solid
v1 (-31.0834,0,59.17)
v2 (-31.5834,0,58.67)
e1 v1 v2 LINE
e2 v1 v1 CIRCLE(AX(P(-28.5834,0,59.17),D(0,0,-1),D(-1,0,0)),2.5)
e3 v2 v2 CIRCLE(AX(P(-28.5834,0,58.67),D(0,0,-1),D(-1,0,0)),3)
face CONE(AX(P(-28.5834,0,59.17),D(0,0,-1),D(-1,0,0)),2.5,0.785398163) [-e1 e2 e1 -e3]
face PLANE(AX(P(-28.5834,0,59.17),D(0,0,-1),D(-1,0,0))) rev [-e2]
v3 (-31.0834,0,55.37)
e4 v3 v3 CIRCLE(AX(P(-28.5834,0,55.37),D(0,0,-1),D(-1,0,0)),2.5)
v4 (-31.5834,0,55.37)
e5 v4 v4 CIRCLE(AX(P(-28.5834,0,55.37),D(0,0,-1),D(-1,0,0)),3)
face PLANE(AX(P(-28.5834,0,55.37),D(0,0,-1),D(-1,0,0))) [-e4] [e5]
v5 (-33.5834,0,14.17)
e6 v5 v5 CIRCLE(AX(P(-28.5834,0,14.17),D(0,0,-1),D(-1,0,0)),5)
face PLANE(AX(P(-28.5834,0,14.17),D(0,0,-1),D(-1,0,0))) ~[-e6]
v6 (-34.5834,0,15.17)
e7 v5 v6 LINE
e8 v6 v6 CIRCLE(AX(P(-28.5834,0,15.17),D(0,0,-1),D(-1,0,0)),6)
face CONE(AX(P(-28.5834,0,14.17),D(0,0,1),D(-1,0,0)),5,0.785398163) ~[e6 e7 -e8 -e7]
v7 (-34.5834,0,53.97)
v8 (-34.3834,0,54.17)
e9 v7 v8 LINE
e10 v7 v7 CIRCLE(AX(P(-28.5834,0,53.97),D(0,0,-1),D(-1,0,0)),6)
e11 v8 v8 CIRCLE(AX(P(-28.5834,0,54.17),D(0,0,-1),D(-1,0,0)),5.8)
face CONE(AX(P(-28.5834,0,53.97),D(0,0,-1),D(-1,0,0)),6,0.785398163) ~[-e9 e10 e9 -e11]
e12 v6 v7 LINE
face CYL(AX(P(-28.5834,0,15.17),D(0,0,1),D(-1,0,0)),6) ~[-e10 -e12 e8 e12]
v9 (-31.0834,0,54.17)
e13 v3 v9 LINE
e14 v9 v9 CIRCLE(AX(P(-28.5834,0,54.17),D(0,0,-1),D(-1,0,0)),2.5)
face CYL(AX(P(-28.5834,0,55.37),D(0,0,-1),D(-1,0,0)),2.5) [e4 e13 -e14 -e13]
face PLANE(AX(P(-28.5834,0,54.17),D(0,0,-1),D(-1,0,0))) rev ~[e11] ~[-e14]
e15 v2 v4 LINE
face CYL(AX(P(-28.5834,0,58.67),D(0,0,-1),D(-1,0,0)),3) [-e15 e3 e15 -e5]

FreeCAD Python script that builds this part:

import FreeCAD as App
import Part
import Sketcher
Q = App.Units.Quantity


def add_polygon(sketch, points):
    """Adds a closed chain of lines whose ends are joined by coincident constraints."""
    first, n = sketch.GeometryCount, len(points)
    for a, b in zip(points, points[1:] + points[:1]):
        sketch.addGeometry(Part.LineSegment(App.Vector(*a, 0), App.Vector(*b, 0)), False)
    for i in range(n):
        sketch.addConstraint(Sketcher.Constraint("Coincident", first + i, 2, first + (i + 1) % n, 1))

doc = App.newDocument("Part")
body = doc.addObject("PartDesign::Body", "Body")

# Sketch on XZ plane
sketch1 = body.newObject("Sketcher::SketchObject", "Sketch")
sketch1.AttachmentSupport = (doc.getObject("XZ_Plane"), [""])
sketch1.MapMode = "FlatFace"
add_polygon(sketch1, [(-28.58, 14.17), (-33.58, 14.17), (-34.58, 15.17), (-34.58, 53.97), (-34.38, 54.17), (-31.08, 54.17), (-31.08, 55.37), (-31.58, 55.37), (-31.58, 58.67), (-31.08, 59.17), (-28.58, 59.17)])  # lines 0-10
sketch1.addGeometry(Part.LineSegment(App.Vector(-28.58, 59.17, 0), App.Vector(-28.58, 14.17, 0)), True)  # axis
sketch1.addConstraint([
    Sketcher.Constraint("Horizontal", 0),
    Sketcher.Constraint("Vertical", 2),
    Sketcher.Constraint("Horizontal", 4),
    Sketcher.Constraint("Vertical", 5),
    Sketcher.Constraint("Horizontal", 6),
    Sketcher.Constraint("Vertical", 7),
    Sketcher.Constraint("Horizontal", 9),
    Sketcher.Constraint("Vertical", 10),
    Sketcher.Constraint("Vertical", 11),
    Sketcher.Constraint("Coincident", 11, 1, 9, 2),
    Sketcher.Constraint("Perpendicular", 1, 3),
    Sketcher.Constraint("Parallel", 3, 8),
    Sketcher.Constraint("Horizontal", 0, 2, 11, 2),
    Sketcher.Constraint("Vertical", 5, 2, 8, 2),
    Sketcher.Constraint("Equal", 4, 7),
    Sketcher.Constraint("DistanceX", 0, 2, 0, 1, 5.0),
    Sketcher.Constraint("DistanceY", 10, 2, 10, 1, 45.0),
    Sketcher.Constraint("Angle", 1, Q("135 deg")),
    Sketcher.Constraint("DistanceX", 4, 1, 4, 2, 3.3),
    Sketcher.Constraint("DistanceX", 6, 2, 6, 1, 0.5),
    Sketcher.Constraint("DistanceX", 9, 1, 9, 2, 2.5),
    Sketcher.Constraint("DistanceY", 2, 1, 2, 2, 38.8),
    Sketcher.Constraint("DistanceY", 5, 1, 5, 2, 1.2),
    Sketcher.Constraint("DistanceY", -1, 1, 0, 2, 14.17),
    Sketcher.Constraint("DistanceX", 0, 2, -1, 1, 33.5834),
])
revolution = body.newObject("PartDesign::Revolution", "Revolution")
revolution.Profile = sketch1
revolution.ReferenceAxis = (sketch1, ["Axis0"])
revolution.Angle = 360

doc.recompute()
